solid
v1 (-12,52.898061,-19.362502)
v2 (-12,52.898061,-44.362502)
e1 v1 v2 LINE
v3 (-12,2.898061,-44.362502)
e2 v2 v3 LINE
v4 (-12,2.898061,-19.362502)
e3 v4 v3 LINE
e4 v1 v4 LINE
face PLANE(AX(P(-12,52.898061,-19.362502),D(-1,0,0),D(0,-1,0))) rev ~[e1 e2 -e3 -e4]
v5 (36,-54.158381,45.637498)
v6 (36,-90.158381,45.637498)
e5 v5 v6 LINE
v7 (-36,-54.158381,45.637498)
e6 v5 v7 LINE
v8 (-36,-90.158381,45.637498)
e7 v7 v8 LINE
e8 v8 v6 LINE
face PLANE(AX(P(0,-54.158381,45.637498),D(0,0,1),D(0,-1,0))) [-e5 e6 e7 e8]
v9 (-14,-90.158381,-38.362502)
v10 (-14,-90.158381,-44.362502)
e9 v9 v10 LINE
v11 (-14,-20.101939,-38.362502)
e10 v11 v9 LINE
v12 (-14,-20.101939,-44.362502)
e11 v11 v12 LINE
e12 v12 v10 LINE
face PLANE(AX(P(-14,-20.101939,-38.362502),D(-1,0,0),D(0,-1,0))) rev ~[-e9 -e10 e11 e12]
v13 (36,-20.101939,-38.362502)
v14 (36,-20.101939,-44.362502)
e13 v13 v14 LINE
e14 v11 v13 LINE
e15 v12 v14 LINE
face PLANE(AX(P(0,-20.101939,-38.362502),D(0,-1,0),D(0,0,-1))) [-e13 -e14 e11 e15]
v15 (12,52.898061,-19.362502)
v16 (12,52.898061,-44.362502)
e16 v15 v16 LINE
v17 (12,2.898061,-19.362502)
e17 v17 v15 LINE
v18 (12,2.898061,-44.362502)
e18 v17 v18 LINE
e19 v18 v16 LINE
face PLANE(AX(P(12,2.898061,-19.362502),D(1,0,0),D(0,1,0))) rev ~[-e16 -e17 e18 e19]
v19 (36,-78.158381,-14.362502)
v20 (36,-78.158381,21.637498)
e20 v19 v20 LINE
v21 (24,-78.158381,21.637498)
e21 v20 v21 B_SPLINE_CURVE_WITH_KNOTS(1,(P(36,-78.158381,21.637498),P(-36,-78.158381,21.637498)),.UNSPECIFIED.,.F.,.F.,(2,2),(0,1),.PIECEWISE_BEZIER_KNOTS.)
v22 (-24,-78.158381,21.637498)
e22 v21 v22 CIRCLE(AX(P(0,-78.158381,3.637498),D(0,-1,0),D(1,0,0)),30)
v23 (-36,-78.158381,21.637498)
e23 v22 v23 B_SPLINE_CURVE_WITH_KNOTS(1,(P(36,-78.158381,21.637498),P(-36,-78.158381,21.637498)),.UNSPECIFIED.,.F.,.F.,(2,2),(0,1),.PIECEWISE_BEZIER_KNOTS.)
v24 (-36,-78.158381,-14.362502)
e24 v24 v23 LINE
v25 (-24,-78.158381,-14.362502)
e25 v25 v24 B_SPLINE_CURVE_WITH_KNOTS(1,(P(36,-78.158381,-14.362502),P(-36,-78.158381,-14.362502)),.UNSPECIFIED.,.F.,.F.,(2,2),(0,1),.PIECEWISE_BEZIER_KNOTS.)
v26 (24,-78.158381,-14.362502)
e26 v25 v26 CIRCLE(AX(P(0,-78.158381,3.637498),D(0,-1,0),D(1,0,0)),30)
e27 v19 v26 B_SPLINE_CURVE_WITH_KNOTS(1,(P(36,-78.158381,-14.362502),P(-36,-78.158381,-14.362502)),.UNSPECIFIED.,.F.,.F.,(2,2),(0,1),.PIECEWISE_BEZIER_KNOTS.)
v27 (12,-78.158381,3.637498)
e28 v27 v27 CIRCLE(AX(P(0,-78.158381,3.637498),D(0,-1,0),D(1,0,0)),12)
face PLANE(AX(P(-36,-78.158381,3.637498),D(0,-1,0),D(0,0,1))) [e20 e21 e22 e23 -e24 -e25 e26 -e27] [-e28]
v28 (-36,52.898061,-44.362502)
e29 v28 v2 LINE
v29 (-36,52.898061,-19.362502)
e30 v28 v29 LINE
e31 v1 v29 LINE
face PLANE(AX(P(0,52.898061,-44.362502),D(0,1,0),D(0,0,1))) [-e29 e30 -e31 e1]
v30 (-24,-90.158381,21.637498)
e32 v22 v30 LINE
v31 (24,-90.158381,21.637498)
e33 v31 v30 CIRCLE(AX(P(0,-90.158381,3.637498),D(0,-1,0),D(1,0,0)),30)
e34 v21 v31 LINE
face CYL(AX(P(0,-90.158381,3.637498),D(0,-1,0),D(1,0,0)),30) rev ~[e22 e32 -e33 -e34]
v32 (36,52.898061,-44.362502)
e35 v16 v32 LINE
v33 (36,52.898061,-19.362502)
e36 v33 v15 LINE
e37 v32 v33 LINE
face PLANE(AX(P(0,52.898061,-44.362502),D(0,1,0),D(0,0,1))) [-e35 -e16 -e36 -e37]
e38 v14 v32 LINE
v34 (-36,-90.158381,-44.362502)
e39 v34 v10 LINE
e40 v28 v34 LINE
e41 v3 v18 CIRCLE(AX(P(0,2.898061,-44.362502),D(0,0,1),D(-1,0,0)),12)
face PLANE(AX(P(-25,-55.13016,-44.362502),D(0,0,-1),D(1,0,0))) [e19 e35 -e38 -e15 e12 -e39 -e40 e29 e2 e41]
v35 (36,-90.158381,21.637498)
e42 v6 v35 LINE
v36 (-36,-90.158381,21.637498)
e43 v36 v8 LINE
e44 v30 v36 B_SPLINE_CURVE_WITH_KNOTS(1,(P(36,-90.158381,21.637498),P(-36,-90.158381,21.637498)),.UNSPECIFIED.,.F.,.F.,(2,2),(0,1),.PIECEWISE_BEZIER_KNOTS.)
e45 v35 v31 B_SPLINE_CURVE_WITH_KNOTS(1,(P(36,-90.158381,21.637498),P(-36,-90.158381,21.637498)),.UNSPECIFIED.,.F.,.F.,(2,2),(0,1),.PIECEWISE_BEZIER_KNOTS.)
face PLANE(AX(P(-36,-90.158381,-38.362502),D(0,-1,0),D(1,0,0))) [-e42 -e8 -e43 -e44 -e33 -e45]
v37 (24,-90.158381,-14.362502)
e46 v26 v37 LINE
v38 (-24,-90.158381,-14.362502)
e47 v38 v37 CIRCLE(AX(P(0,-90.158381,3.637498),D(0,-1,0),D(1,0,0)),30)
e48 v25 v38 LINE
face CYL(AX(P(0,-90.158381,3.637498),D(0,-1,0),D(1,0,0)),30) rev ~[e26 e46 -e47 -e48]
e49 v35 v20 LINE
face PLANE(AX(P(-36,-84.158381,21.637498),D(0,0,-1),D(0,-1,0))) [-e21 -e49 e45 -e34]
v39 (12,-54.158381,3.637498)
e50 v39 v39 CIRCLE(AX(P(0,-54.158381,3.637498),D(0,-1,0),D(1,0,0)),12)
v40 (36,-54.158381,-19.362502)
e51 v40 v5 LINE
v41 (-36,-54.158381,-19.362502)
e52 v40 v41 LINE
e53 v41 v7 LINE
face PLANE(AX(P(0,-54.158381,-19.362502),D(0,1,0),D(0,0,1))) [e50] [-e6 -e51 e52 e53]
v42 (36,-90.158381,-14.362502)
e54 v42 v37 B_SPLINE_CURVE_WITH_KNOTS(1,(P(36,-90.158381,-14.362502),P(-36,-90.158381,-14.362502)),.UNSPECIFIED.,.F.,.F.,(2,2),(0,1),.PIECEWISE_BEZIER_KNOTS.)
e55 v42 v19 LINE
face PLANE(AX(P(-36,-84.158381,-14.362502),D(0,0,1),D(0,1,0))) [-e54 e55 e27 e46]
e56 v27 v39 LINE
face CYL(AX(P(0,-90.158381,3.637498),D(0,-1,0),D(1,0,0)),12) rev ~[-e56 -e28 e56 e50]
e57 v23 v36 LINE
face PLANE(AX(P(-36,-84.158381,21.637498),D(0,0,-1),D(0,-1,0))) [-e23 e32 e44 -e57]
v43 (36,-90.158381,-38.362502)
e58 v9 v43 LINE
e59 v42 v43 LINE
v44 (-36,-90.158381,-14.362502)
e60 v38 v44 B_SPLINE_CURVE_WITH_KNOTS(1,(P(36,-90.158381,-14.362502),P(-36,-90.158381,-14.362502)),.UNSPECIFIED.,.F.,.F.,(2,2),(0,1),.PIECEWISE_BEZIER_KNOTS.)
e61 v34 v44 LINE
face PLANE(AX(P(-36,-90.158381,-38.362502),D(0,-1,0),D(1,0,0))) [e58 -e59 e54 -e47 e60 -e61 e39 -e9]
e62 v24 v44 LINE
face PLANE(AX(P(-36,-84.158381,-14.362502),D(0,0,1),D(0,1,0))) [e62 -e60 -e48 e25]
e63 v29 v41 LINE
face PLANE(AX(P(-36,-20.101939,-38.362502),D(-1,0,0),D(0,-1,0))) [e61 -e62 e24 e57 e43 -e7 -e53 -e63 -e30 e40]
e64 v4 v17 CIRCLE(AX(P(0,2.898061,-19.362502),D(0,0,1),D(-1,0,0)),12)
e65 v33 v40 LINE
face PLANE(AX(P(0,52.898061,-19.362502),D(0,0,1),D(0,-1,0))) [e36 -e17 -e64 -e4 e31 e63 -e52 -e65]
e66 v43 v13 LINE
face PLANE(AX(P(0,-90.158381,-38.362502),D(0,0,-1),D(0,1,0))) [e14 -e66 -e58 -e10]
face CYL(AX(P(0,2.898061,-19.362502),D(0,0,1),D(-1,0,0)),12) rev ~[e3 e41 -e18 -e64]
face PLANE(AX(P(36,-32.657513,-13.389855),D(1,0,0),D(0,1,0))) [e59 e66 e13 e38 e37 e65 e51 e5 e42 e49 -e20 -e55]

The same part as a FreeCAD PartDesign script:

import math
import FreeCAD as App
import Part
import Sketcher
from FreeCAD import Vector
Q = App.Units.Quantity


def add_polygon(sketch, points):
    """Adds a closed chain of lines whose ends are joined by coincident constraints."""
    first, n = sketch.GeometryCount, len(points)
    for a, b in zip(points, points[1:] + points[:1]):
        sketch.addGeometry(Part.LineSegment(App.Vector(*a, 0), App.Vector(*b, 0)), False)
    for i in range(n):
        sketch.addConstraint(Sketcher.Constraint("Coincident", first + i, 2, first + (i + 1) % n, 1))

doc = App.newDocument("Part")
body = doc.addObject("PartDesign::Body", "Body")

# Sketch on YZ plane
sketch1 = body.newObject("Sketcher::SketchObject", "Sketch")
sketch1.AttachmentSupport = (doc.getObject("YZ_Plane"), [""])
sketch1.MapMode = "FlatFace"
add_polygon(sketch1, [(-54.158381, 45.637498), (-90.158381, 45.637498), (-90.158381, -38.362502), (-20.101939, -38.362502), (-20.101939, -44.362502), (52.898061, -44.362502), (52.898061, -19.362502), (-54.158381, -19.362502)])  # lines 0-7
sketch1.addConstraint([
    Sketcher.Constraint("Horizontal", 0),
    Sketcher.Constraint("Vertical", 1),
    Sketcher.Constraint("Horizontal", 2),
    Sketcher.Constraint("Vertical", 3),
    Sketcher.Constraint("Horizontal", 4),
    Sketcher.Constraint("Vertical", 5),
    Sketcher.Constraint("Horizontal", 6),
    Sketcher.Constraint("Vertical", 7),
    Sketcher.Constraint("DistanceX", 0, 2, 0, 1, Q("36 mm")),
    Sketcher.Constraint("DistanceX", 4, 1, 4, 2, Q("73 mm")),
    Sketcher.Constraint("DistanceY", 1, 2, 1, 1, Q("84 mm")),
    Sketcher.Constraint("DistanceY", 3, 2, 3, 1, Q("6 mm")),
    Sketcher.Constraint("DistanceY", 5, 1, 5, 2, Q("25 mm")),
    Sketcher.Constraint("DistanceY", 5, 2, -1, 1, Q("19.362502 mm")),
    Sketcher.Constraint("DistanceX", 2, 1, 2, 2, Q("70.056442 mm")),
    Sketcher.Constraint("DistanceX", 0, 2, -1, 1, Q("90.158381 mm")),
])
pad1 = body.newObject("PartDesign::Pad", "Pad")
pad1.Profile = sketch1
pad1.Length = 72
pad1.Midplane = True

# Sketch on XY plane
sketch2 = body.newObject("Sketcher::SketchObject", "Sketch001")
sketch2.AttachmentSupport = (doc.getObject("XY_Plane"), [""])
sketch2.MapMode = "FlatFace"
sketch2.AttachmentOffset = App.Placement(Vector(0, 0, -38.362502), App.Rotation())
add_polygon(sketch2, [(-36, -90.158381), (-36, -20.101939), (-14, -20.101939), (-14, -90.158381)])  # lines 0-3
sketch2.addConstraint([
    Sketcher.Constraint("Vertical", 0),
    Sketcher.Constraint("Horizontal", 1),
    Sketcher.Constraint("Vertical", 2),
    Sketcher.Constraint("Horizontal", 3),
    Sketcher.Constraint("DistanceX", 1, 1, 1, 2, Q("22 mm")),
    Sketcher.Constraint("DistanceX", 0, 2, -1, 1, Q("36 mm")),
    Sketcher.Constraint("DistanceY", 0, 1, 0, 2, Q("70.056442 mm")),
    Sketcher.Constraint("DistanceY", 0, 2, -1, 1, Q("20.101939 mm")),
])
pad2 = body.newObject("PartDesign::Pad", "Pad001")
pad2.Profile = sketch2
pad2.Length = 6
pad2.Reversed = True

# Sketch on XZ plane
sketch3 = body.newObject("Sketcher::SketchObject", "Sketch002")
sketch3.AttachmentSupport = (doc.getObject("XZ_Plane"), [""])
sketch3.MapMode = "FlatFace"
sketch3.AttachmentOffset = App.Placement(Vector(0, 0, 90.158381), App.Rotation())
sketch3.addGeometry(Part.Circle(Vector(0, 3.637498, 0), Vector(0, 0, 1), 12), False)
sketch3.addConstraint([
    Sketcher.Constraint("PointOnObject", 0, 3, -2),
    Sketcher.Constraint("Diameter", 0, Q("24 mm")),
    Sketcher.Constraint("DistanceY", -1, 1, 0, 3, Q("3.637498 mm")),
])
pocket1 = body.newObject("PartDesign::Pocket", "Pocket")
pocket1.Profile = sketch3
pocket1.Type = "ThroughAll"

# Sketch on XZ plane
sketch4 = body.newObject("Sketcher::SketchObject", "Sketch003")
sketch4.AttachmentSupport = (doc.getObject("XZ_Plane"), [""])
sketch4.MapMode = "FlatFace"
sketch4.AttachmentOffset = App.Placement(Vector(0, 0, 90.158381), App.Rotation())
sketch4.addGeometry(Part.Circle(Vector(0, 3.637498, 0), Vector(0, 0, 1), 30), False)
sketch4.addConstraint([
    Sketcher.Constraint("PointOnObject", 0, 3, -2),
    Sketcher.Constraint("Diameter", 0, Q("60 mm")),
    Sketcher.Constraint("DistanceY", -1, 1, 0, 3, Q("3.637498 mm")),
])
pocket2 = body.newObject("PartDesign::Pocket", "Pocket001")
pocket2.Profile = sketch4
pocket2.Length = 12

# Sketch on YZ plane
sketch5 = body.newObject("Sketcher::SketchObject", "Sketch004")
sketch5.AttachmentSupport = (doc.getObject("YZ_Plane"), [""])
sketch5.MapMode = "FlatFace"
sketch5.AttachmentOffset = App.Placement(Vector(0, 0, 36), App.Rotation())
add_polygon(sketch5, [(-90.158381, 21.637498), (-90.158381, -14.362502), (-78.158381, -14.362502), (-78.158381, 21.637498)])  # lines 0-3
sketch5.addConstraint([
    Sketcher.Constraint("Vertical", 0),
    Sketcher.Constraint("Horizontal", 1),
    Sketcher.Constraint("Vertical", 2),
    Sketcher.Constraint("Horizontal", 3),
    Sketcher.Constraint("DistanceX", 1, 1, 1, 2, Q("12 mm")),
    Sketcher.Constraint("DistanceY", 0, 2, 0, 1, Q("36 mm")),
    Sketcher.Constraint("DistanceY", 0, 2, -1, 1, Q("14.362502 mm")),
    Sketcher.Constraint("DistanceX", 0, 2, -1, 1, Q("90.158381 mm")),
])

# Sketch on YZ plane
sketch6 = body.newObject("Sketcher::SketchObject", "Sketch005")
sketch6.AttachmentSupport = (doc.getObject("YZ_Plane"), [""])
sketch6.MapMode = "FlatFace"
sketch6.AttachmentOffset = App.Placement(Vector(0, 0, -36), App.Rotation())
add_polygon(sketch6, [(-78.158381, 21.637498), (-78.158381, -14.362502), (-90.158381, -14.362502), (-90.158381, 21.637498)])  # lines 0-3
sketch6.addConstraint([
    Sketcher.Constraint("Vertical", 0),
    Sketcher.Constraint("Horizontal", 1),
    Sketcher.Constraint("Vertical", 2),
    Sketcher.Constraint("Horizontal", 3),
    Sketcher.Constraint("DistanceX", 1, 2, 1, 1, Q("12 mm")),
    Sketcher.Constraint("DistanceY", 0, 2, 0, 1, Q("36 mm")),
    Sketcher.Constraint("DistanceY", 0, 2, -1, 1, Q("14.362502 mm")),
    Sketcher.Constraint("DistanceX", 0, 2, -1, 1, Q("78.158381 mm")),
])

subtractiveloft = body.newObject("PartDesign::SubtractiveLoft", "SubtractiveLoft")
subtractiveloft.Profile = sketch5
subtractiveloft.Sections = [sketch6]

# Sketch on XY plane
sketch7 = body.newObject("Sketcher::SketchObject", "Sketch006")
sketch7.AttachmentSupport = (doc.getObject("XY_Plane"), [""])
sketch7.MapMode = "FlatFace"
sketch7.AttachmentOffset = App.Placement(Vector(0, 0, -19.362502), App.Rotation())
sketch7.addGeometry([
    Part.LineSegment(Vector(12, 2.898061, 0), Vector(12, 52.898061, 0)),
    Part.LineSegment(Vector(12, 52.898061, 0), Vector(-12, 52.898061, 0)),
    Part.LineSegment(Vector(-12, 52.898061, 0), Vector(-12, 2.898061, 0)),
    Part.ArcOfCircle(Part.Circle(Vector(0, 2.898061, 0), Vector(0, 0, 1), 12), math.radians(180), math.radians(360)),
], False)
sketch7.addConstraint([
    Sketcher.Constraint("Coincident", 0, 2, 1, 1),
    Sketcher.Constraint("Coincident", 1, 2, 2, 1),
    Sketcher.Constraint("Tangent", 2, 2, 3, 1),
    Sketcher.Constraint("Tangent", 3, 2, 0, 1),
    Sketcher.Constraint("Vertical", 0),
    Sketcher.Constraint("Horizontal", 1),
    Sketcher.Constraint("Vertical", 2),
    Sketcher.Constraint("PointOnObject", 3, 3, -2),
    Sketcher.Constraint("Radius", 3, Q("12 mm")),
    Sketcher.Constraint("DistanceY", 0, 1, 0, 2, Q("50 mm")),
    Sketcher.Constraint("DistanceY", -1, 1, 3, 3, Q("2.898061 mm")),
])
pocket3 = body.newObject("PartDesign::Pocket", "Pocket002")
pocket3.Profile = sketch7
pocket3.Length = 25

doc.recompute()
